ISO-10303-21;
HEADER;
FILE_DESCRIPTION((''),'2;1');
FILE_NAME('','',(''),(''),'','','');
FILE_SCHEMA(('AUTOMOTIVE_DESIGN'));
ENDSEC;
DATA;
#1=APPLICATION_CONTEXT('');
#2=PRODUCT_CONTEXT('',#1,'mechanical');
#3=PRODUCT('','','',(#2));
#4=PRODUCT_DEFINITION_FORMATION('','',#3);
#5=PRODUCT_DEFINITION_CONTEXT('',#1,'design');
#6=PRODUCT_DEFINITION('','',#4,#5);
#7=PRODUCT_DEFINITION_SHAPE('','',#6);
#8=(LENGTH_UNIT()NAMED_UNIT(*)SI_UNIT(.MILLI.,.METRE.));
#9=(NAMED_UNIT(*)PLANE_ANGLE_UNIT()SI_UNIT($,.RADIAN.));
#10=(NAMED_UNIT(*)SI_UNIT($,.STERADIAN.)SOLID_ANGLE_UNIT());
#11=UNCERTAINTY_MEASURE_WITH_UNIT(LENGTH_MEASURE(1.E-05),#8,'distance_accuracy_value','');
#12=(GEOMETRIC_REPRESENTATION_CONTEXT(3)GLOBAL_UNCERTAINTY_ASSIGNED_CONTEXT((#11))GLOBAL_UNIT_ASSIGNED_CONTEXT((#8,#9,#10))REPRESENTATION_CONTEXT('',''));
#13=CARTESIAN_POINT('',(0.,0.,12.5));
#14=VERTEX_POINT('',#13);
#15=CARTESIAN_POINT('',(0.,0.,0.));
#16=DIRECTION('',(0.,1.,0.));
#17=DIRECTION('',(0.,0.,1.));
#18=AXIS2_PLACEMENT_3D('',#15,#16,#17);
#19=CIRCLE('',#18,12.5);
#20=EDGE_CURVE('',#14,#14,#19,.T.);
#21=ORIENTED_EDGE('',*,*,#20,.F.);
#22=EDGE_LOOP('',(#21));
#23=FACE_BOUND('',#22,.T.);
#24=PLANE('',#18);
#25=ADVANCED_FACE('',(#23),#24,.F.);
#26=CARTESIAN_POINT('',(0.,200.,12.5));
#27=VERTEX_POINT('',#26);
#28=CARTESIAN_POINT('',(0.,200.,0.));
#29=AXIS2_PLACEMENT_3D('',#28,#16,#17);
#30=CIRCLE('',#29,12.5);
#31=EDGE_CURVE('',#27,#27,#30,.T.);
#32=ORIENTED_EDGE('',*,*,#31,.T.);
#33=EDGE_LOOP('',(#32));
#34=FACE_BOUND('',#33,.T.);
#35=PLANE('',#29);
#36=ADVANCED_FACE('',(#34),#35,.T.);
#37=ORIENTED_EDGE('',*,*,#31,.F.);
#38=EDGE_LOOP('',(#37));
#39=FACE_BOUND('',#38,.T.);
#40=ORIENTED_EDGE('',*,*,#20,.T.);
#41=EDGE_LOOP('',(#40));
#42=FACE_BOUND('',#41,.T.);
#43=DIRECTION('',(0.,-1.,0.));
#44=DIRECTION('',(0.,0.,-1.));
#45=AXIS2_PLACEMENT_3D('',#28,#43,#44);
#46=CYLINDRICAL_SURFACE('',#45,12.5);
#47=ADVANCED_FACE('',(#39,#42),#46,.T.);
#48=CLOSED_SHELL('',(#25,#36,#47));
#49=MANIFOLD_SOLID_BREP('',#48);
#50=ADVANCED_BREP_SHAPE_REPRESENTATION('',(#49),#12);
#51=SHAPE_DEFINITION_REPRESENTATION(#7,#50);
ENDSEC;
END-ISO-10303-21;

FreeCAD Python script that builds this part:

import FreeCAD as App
import Part
import Sketcher
from FreeCAD import Vector
Q = App.Units.Quantity

doc = App.newDocument("Part")
body = doc.addObject("PartDesign::Body", "Body")

# Sketch on XZ plane
sketch1 = doc.addObject("Sketcher::SketchObject", "Sketch")
body.addObject(sketch1)
sketch1.AttachmentSupport = (doc.XZ_Plane, [""])
sketch1.MapMode = "FlatFace"
sketch1.addGeometry(Part.Circle(Vector(0, 0, 0), Vector(0, 0, 1), 12), False)
sketch1.addConstraint([
    Sketcher.Constraint("Coincident", 0, 3, -1, 1),
    Sketcher.Constraint("Diameter", 0, Q("25 mm")),
])
pad1 = doc.addObject("PartDesign::Pad", "Pad")
body.addObject(pad1)
pad1.Profile = sketch1
pad1.Length = 200
pad1.Reversed = True

doc.recompute()
